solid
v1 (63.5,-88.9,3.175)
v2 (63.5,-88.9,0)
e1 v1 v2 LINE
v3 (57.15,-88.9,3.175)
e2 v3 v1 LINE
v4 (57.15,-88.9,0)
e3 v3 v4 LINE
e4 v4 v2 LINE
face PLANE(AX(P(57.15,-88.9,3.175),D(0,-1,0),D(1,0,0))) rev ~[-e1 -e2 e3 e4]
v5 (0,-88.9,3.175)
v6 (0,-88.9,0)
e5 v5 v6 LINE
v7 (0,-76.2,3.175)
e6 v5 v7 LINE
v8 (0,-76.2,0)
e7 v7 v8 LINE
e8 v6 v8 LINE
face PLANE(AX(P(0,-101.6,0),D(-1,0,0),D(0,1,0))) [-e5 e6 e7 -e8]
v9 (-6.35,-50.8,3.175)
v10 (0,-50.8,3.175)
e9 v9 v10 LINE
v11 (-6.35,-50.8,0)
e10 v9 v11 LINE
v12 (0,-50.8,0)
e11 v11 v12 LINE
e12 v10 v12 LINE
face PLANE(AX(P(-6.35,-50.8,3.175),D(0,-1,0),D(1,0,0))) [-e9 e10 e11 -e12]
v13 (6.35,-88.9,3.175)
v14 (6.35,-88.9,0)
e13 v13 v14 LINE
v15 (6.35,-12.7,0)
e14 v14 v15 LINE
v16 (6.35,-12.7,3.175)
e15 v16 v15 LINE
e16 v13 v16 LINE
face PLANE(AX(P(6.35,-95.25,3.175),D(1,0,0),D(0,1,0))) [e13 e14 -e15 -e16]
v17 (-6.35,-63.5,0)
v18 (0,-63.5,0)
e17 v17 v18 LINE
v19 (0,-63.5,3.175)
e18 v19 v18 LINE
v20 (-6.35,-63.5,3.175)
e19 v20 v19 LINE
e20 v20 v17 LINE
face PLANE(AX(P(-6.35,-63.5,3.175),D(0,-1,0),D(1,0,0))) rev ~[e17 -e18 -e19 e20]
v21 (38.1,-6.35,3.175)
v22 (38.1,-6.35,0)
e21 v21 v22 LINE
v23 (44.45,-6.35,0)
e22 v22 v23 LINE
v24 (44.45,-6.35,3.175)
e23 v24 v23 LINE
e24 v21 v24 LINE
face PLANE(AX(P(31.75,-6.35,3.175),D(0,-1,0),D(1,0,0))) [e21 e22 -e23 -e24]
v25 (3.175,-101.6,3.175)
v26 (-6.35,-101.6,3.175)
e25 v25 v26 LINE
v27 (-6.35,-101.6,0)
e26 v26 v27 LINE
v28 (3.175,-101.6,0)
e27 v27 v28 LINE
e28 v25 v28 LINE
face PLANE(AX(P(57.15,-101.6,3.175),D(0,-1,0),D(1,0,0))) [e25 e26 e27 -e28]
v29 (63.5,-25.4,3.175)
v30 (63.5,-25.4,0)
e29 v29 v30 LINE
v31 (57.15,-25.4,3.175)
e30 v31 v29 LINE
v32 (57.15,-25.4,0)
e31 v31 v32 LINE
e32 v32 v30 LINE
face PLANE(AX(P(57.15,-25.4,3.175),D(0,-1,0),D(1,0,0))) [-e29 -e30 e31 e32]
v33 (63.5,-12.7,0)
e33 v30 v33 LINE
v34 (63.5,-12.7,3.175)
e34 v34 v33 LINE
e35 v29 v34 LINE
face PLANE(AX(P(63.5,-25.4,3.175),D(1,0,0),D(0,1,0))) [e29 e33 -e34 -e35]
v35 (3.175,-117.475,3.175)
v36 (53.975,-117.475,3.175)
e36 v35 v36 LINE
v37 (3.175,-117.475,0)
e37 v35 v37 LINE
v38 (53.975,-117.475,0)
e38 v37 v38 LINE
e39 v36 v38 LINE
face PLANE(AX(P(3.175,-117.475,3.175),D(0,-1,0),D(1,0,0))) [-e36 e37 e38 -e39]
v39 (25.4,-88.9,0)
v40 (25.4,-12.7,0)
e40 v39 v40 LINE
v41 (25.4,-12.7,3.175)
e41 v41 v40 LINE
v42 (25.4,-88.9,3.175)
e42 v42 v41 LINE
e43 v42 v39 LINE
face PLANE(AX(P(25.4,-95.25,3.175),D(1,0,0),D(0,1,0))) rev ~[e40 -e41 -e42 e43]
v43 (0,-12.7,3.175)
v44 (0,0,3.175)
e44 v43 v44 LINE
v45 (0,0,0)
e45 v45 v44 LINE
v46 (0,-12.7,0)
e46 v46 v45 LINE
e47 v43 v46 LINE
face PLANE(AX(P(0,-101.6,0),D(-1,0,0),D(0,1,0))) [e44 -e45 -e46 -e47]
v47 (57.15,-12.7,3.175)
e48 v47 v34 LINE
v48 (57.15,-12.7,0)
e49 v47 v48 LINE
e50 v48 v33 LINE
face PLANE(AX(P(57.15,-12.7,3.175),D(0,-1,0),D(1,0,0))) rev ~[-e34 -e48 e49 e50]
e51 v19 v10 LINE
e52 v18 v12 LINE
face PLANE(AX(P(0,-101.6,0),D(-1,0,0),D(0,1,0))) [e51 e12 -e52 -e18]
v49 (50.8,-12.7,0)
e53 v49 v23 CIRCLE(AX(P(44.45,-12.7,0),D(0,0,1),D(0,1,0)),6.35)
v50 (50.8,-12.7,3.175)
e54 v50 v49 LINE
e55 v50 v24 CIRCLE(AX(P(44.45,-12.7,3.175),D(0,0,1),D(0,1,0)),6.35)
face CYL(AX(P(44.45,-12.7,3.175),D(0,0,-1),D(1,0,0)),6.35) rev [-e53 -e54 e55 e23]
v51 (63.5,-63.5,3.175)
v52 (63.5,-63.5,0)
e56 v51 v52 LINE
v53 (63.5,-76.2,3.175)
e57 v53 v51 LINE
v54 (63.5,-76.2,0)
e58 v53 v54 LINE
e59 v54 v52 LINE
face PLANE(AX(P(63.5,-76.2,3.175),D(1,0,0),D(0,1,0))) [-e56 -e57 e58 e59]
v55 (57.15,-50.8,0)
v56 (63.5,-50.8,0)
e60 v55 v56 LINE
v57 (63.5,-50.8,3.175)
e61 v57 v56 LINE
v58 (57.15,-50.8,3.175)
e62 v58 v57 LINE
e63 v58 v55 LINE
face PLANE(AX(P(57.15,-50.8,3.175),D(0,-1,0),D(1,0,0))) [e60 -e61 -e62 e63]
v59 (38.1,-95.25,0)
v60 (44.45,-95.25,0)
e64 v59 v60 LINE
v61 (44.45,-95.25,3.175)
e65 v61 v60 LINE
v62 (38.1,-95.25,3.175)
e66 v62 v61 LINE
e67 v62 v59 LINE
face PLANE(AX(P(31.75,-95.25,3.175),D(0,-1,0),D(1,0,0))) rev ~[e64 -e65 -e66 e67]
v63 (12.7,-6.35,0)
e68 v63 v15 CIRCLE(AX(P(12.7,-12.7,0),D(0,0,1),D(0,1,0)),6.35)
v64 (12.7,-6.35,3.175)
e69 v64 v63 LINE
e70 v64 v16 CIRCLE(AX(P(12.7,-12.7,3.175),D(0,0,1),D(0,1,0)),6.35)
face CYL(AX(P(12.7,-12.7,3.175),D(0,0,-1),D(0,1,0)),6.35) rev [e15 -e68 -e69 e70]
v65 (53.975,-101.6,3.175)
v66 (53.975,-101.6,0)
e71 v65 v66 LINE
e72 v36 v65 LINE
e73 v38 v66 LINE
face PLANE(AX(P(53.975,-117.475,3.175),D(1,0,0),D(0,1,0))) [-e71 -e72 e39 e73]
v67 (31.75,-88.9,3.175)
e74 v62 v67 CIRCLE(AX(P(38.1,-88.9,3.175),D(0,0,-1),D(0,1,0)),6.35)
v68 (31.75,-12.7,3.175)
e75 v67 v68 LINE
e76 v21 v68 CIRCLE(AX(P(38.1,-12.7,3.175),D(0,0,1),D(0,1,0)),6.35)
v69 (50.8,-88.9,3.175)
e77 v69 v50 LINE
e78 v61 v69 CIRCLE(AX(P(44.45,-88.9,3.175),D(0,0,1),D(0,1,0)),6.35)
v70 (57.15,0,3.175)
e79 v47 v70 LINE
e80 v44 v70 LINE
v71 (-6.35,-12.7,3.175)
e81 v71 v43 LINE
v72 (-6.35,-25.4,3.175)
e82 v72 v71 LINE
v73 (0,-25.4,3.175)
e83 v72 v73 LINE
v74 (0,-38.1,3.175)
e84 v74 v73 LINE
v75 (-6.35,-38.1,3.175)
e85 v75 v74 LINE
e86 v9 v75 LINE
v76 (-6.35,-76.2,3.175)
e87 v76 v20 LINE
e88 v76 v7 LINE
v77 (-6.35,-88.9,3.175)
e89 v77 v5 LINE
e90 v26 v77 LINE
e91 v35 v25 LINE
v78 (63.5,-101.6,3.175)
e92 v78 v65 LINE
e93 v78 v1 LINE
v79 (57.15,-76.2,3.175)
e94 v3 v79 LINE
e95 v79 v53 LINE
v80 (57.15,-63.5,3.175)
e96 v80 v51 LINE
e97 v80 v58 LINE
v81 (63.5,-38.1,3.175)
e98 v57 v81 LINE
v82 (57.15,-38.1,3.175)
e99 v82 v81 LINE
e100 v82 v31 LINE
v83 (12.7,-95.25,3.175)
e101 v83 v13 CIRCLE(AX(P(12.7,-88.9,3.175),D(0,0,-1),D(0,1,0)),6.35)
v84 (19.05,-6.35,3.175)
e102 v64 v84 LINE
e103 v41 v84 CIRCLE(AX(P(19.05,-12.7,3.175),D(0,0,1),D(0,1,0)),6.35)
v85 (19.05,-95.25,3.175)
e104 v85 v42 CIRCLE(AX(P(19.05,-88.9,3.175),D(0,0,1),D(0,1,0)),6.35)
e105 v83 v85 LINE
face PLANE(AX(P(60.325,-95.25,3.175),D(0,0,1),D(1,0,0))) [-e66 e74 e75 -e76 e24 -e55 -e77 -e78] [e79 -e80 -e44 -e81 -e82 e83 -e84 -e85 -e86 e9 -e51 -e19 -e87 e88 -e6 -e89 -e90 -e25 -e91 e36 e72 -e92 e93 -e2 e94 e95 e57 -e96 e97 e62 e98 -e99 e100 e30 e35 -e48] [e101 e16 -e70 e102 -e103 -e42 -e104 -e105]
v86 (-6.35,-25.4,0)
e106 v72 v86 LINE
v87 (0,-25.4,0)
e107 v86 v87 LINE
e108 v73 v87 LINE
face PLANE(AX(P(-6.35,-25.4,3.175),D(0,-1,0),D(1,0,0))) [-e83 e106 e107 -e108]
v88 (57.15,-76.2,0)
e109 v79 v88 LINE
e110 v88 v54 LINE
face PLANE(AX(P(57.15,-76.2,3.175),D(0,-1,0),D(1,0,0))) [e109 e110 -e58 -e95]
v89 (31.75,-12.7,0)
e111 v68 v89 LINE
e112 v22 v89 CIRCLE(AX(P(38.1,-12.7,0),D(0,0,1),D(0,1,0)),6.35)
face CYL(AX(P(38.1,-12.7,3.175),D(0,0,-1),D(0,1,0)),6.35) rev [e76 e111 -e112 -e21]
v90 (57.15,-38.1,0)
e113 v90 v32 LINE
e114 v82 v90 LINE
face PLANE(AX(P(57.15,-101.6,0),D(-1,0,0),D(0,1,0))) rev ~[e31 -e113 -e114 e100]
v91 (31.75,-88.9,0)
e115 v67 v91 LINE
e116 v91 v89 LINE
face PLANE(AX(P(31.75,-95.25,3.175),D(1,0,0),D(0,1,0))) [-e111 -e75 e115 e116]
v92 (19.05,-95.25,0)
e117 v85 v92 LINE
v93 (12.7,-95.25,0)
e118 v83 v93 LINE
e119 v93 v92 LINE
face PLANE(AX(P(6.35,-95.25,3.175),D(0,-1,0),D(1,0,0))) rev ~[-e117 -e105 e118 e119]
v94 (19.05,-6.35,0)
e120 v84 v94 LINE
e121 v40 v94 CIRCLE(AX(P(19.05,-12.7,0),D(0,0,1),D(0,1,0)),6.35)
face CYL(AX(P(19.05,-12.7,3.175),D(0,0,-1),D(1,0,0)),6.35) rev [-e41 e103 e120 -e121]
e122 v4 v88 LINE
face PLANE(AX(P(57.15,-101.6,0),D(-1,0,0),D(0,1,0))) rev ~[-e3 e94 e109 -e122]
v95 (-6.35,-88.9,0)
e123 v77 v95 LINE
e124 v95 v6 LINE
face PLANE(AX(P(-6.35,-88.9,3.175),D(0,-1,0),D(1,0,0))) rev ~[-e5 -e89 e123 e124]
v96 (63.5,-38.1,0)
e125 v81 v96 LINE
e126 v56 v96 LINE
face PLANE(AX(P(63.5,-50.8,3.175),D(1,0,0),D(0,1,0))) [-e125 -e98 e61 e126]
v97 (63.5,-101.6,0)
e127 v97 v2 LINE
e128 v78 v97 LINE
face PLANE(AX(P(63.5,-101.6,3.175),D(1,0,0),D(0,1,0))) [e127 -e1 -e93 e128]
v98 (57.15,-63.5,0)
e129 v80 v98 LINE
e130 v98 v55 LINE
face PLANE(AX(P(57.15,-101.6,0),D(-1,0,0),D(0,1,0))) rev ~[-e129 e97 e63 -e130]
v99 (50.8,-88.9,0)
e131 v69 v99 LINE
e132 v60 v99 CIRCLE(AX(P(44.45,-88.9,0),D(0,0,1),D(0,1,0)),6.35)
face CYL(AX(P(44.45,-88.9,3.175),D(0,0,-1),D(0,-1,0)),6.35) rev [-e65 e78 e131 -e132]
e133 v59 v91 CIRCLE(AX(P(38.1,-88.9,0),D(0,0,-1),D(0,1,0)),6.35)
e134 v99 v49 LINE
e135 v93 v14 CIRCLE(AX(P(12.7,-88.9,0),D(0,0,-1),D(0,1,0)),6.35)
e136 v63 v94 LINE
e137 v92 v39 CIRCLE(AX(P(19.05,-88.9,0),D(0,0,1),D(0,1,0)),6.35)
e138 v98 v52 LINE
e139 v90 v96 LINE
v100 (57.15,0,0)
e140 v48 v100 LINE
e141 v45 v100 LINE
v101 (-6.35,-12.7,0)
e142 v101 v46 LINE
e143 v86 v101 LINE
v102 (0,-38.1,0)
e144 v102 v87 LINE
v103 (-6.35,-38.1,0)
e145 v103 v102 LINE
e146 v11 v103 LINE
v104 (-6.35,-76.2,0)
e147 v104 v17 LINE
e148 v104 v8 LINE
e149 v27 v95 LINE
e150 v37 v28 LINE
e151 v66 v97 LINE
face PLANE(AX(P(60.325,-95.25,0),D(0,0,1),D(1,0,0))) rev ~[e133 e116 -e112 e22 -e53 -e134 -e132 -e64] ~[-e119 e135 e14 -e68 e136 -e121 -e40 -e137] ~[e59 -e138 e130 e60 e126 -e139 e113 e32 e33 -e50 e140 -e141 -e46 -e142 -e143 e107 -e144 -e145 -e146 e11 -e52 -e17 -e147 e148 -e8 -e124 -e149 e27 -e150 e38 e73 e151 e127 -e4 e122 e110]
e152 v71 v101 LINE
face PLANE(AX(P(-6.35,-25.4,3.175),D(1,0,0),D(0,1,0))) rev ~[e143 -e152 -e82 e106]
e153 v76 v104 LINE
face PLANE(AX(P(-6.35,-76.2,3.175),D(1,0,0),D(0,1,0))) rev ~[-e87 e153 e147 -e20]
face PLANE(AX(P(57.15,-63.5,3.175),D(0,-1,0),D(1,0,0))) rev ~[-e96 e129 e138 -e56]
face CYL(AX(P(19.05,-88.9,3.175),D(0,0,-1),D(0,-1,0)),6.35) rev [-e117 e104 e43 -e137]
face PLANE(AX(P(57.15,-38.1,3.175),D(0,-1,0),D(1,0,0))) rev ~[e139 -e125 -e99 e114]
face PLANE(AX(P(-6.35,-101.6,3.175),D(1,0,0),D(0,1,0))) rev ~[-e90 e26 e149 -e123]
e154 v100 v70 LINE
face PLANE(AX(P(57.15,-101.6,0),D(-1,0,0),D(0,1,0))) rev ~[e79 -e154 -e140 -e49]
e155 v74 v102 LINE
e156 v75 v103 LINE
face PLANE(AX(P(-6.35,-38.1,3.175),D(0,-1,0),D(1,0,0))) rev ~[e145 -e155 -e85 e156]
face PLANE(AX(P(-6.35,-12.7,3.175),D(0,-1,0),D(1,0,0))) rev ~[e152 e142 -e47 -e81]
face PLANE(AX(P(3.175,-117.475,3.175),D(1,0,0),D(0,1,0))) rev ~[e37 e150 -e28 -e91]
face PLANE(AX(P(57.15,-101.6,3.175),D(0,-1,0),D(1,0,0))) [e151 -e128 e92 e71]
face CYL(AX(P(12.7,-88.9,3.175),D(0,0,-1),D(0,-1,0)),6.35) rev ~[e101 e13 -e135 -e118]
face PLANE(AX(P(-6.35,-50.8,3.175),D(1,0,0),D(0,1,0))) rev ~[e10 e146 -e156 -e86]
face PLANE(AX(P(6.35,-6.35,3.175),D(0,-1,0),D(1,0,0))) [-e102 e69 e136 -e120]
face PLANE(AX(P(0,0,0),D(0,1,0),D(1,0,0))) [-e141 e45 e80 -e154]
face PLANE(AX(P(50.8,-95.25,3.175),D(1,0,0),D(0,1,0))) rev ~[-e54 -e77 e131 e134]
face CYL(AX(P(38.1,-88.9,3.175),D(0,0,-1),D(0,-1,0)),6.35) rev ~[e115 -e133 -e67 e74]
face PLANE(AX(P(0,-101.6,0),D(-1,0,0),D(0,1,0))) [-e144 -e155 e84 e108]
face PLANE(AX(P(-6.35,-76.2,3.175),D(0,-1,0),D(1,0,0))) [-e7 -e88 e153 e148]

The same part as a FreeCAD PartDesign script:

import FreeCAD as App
import Part
import Sketcher
Q = App.Units.Quantity


def edges_at(feature, points):
    """Names of the edges that pass closest to the given points."""
    edges = feature.Shape.Edges
    near = lambda p: min(range(len(edges)), key=lambda i: edges[i].distToShape(Part.Vertex(*p))[0])
    return sorted({f"Edge{near(p) + 1}" for p in points})


def add_polygon(sketch, points):
    """Adds a closed chain of lines whose ends are joined by coincident constraints."""
    first, n = sketch.GeometryCount, len(points)
    for a, b in zip(points, points[1:] + points[:1]):
        sketch.addGeometry(Part.LineSegment(App.Vector(*a, 0), App.Vector(*b, 0)), False)
    for i in range(n):
        sketch.addConstraint(Sketcher.Constraint("Coincident", first + i, 2, first + (i + 1) % n, 1))

doc = App.newDocument("Part")
body = doc.addObject("PartDesign::Body", "Body")

# Sketch on XY plane
sketch1 = body.newObject("Sketcher::SketchObject", "Sketch")
sketch1.AttachmentSupport = (doc.getObject("XY_Plane"), [""])
sketch1.MapMode = "FlatFace"
add_polygon(sketch1, [(0, 0), (0, -101.6), (57.15, -101.6), (57.15, 0)])  # lines 0-3
sketch1.addConstraint([
    Sketcher.Constraint("Vertical", 0),
    Sketcher.Constraint("Horizontal", 1),
    Sketcher.Constraint("Vertical", 2),
    Sketcher.Constraint("Horizontal", 3),
    Sketcher.Constraint("Coincident", 3, 2, -1, 1),
    Sketcher.Constraint("DistanceY", 0, 2, 0, 1, Q("4 in")),
    Sketcher.Constraint("DistanceX", 1, 1, 1, 2, Q("2.25 in")),
])
pad1 = body.newObject("PartDesign::Pad", "Pad")
pad1.Profile = sketch1
pad1.Length = Q("0.125 in")

# Sketch on XY plane
sketch2 = body.newObject("Sketcher::SketchObject", "Sketch001")
sketch2.AttachmentSupport = (doc.getObject("XY_Plane"), [""])
sketch2.MapMode = "FlatFace"
sketch2.AttachmentOffset = App.Placement(App.Vector(0, 0, 0.125 * 25.4), App.Rotation())
add_polygon(sketch2, [(57.15, -12.7), (57.15, -25.4), (63.5, -25.4), (63.5, -12.7)])  # lines 0-3
add_polygon(sketch2, [(-6.35, -12.7), (-6.35, -25.4), (0, -25.4), (0, -12.7)])  # lines 4-7
sketch2.addConstraint([
    Sketcher.Constraint("Vertical", 0),
    Sketcher.Constraint("Horizontal", 1),
    Sketcher.Constraint("Vertical", 2),
    Sketcher.Constraint("Horizontal", 3),
    Sketcher.Constraint("Vertical", 4),
    Sketcher.Constraint("Horizontal", 5),
    Sketcher.Constraint("Vertical", 6),
    Sketcher.Constraint("Horizontal", 7),
    Sketcher.Constraint("PointOnObject", 5, 2, -2),
    Sketcher.Constraint("Horizontal", 1, 2, 4, 2),
    Sketcher.Constraint("Horizontal", 3, 2, 6, 2),
    Sketcher.Constraint("Equal", 3, 5),
    Sketcher.Constraint("DistanceY", 0, 2, 0, 1, Q("0.5 in")),
    Sketcher.Constraint("DistanceY", 0, 2, -1, 1, Q("1 in")),
    Sketcher.Constraint("DistanceX", 1, 1, 1, 2, Q("0.25 in")),
    Sketcher.Constraint("DistanceX", -1, 1, 1, 2, Q("2.5 in")),
])
pad2 = body.newObject("PartDesign::Pad", "Pad001")
pad2.Profile = sketch2
pad2.Length = Q("0.125 in")
pad2.Reversed = True
doc.recompute()

linearpattern = body.newObject("PartDesign::LinearPattern", "LinearPattern")
linearpattern.Originals = [pad2]
linearpattern.Direction = (doc.getObject("Y_Axis"), [""])
linearpattern.Mode = "offset"
linearpattern.Offset = Q("1 in")
linearpattern.Occurrences = 4
linearpattern.Reversed = True
body.Tip = linearpattern

# Sketch on XY plane
sketch3 = body.newObject("Sketcher::SketchObject", "Sketch002")
sketch3.AttachmentSupport = (doc.getObject("XY_Plane"), [""])
sketch3.MapMode = "FlatFace"
sketch3.AttachmentOffset = App.Placement(App.Vector(0, 0, 0.125 * 25.4), App.Rotation())
add_polygon(sketch3, [(3.175, -101.6), (3.175, -117.475), (53.975, -117.475), (53.975, -101.6)])  # lines 0-3
sketch3.addConstraint([
    Sketcher.Constraint("Vertical", 0),
    Sketcher.Constraint("Horizontal", 1),
    Sketcher.Constraint("Vertical", 2),
    Sketcher.Constraint("Horizontal", 3),
    Sketcher.Constraint("DistanceX", 1, 1, 1, 2, Q("2 in")),
    Sketcher.Constraint("DistanceY", 2, 2, -1, 1, Q("4 in")),
    Sketcher.Constraint("DistanceY", 0, 2, 0, 1, Q("0.625 in")),
    Sketcher.Constraint("DistanceX", -1, 1, 0, 2, Q("0.125 in")),
])
pad3 = body.newObject("PartDesign::Pad", "Pad002")
pad3.Profile = sketch3
pad3.Length = Q("0.125 in")
pad3.Reversed = True

# Sketch on XY plane
sketch4 = body.newObject("Sketcher::SketchObject", "Sketch003")
sketch4.AttachmentSupport = (doc.getObject("XY_Plane"), [""])
sketch4.MapMode = "FlatFace"
sketch4.AttachmentOffset = App.Placement(App.Vector(0, 0, 0.125 * 25.4), App.Rotation())
add_polygon(sketch4, [(6.35, -6.35), (6.35, -95.25), (25.4, -95.25), (25.4, -6.35)])  # lines 0-3
add_polygon(sketch4, [(31.75, -6.35), (31.75, -95.25), (50.8, -95.25), (50.8, -6.35)])  # lines 4-7
sketch4.addConstraint([
    Sketcher.Constraint("Vertical", 0),
    Sketcher.Constraint("Horizontal", 1),
    Sketcher.Constraint("Vertical", 2),
    Sketcher.Constraint("Horizontal", 3),
    Sketcher.Constraint("Vertical", 4),
    Sketcher.Constraint("Horizontal", 5),
    Sketcher.Constraint("Vertical", 6),
    Sketcher.Constraint("Horizontal", 7),
    Sketcher.Constraint("Horizontal", 1, 2, 4, 2),
    Sketcher.Constraint("Horizontal", 3, 2, 6, 2),
    Sketcher.Constraint("Equal", 3, 5),
    Sketcher.Constraint("DistanceY", 0, 2, 0, 1, Q("3.5 in")),
    Sketcher.Constraint("DistanceX", -1, 1, 1, 2, Q("1 in")),
    Sketcher.Constraint("DistanceX", -1, 1, 5, 2, Q("2 in")),
    Sketcher.Constraint("DistanceX", 1, 1, 1, 2, Q("0.75 in")),
    Sketcher.Constraint("DistanceY", 0, 2, -1, 1, Q("3.75 in")),
])
pocket1 = body.newObject("PartDesign::Pocket", "Pocket")
pocket1.Profile = sketch4
pocket1.Length = Q("0.125 in")
doc.recompute()

fillet = body.newObject("PartDesign::Fillet", "Fillet")
fillet.Base = (pocket1, edges_at(pocket1, [
    (6.35, -95.25, 1.587),
    (6.35, -6.35, 1.587),
    (25.4, -6.35, 1.587),
    (25.4, -95.25, 1.587),
    (50.8, -6.35, 1.587),
    (50.8, -95.25, 1.587),
    (31.75, -95.25, 1.587),
    (31.75, -6.35, 1.587),
]))
fillet.Radius = Q("0.25 in")

doc.recompute()
